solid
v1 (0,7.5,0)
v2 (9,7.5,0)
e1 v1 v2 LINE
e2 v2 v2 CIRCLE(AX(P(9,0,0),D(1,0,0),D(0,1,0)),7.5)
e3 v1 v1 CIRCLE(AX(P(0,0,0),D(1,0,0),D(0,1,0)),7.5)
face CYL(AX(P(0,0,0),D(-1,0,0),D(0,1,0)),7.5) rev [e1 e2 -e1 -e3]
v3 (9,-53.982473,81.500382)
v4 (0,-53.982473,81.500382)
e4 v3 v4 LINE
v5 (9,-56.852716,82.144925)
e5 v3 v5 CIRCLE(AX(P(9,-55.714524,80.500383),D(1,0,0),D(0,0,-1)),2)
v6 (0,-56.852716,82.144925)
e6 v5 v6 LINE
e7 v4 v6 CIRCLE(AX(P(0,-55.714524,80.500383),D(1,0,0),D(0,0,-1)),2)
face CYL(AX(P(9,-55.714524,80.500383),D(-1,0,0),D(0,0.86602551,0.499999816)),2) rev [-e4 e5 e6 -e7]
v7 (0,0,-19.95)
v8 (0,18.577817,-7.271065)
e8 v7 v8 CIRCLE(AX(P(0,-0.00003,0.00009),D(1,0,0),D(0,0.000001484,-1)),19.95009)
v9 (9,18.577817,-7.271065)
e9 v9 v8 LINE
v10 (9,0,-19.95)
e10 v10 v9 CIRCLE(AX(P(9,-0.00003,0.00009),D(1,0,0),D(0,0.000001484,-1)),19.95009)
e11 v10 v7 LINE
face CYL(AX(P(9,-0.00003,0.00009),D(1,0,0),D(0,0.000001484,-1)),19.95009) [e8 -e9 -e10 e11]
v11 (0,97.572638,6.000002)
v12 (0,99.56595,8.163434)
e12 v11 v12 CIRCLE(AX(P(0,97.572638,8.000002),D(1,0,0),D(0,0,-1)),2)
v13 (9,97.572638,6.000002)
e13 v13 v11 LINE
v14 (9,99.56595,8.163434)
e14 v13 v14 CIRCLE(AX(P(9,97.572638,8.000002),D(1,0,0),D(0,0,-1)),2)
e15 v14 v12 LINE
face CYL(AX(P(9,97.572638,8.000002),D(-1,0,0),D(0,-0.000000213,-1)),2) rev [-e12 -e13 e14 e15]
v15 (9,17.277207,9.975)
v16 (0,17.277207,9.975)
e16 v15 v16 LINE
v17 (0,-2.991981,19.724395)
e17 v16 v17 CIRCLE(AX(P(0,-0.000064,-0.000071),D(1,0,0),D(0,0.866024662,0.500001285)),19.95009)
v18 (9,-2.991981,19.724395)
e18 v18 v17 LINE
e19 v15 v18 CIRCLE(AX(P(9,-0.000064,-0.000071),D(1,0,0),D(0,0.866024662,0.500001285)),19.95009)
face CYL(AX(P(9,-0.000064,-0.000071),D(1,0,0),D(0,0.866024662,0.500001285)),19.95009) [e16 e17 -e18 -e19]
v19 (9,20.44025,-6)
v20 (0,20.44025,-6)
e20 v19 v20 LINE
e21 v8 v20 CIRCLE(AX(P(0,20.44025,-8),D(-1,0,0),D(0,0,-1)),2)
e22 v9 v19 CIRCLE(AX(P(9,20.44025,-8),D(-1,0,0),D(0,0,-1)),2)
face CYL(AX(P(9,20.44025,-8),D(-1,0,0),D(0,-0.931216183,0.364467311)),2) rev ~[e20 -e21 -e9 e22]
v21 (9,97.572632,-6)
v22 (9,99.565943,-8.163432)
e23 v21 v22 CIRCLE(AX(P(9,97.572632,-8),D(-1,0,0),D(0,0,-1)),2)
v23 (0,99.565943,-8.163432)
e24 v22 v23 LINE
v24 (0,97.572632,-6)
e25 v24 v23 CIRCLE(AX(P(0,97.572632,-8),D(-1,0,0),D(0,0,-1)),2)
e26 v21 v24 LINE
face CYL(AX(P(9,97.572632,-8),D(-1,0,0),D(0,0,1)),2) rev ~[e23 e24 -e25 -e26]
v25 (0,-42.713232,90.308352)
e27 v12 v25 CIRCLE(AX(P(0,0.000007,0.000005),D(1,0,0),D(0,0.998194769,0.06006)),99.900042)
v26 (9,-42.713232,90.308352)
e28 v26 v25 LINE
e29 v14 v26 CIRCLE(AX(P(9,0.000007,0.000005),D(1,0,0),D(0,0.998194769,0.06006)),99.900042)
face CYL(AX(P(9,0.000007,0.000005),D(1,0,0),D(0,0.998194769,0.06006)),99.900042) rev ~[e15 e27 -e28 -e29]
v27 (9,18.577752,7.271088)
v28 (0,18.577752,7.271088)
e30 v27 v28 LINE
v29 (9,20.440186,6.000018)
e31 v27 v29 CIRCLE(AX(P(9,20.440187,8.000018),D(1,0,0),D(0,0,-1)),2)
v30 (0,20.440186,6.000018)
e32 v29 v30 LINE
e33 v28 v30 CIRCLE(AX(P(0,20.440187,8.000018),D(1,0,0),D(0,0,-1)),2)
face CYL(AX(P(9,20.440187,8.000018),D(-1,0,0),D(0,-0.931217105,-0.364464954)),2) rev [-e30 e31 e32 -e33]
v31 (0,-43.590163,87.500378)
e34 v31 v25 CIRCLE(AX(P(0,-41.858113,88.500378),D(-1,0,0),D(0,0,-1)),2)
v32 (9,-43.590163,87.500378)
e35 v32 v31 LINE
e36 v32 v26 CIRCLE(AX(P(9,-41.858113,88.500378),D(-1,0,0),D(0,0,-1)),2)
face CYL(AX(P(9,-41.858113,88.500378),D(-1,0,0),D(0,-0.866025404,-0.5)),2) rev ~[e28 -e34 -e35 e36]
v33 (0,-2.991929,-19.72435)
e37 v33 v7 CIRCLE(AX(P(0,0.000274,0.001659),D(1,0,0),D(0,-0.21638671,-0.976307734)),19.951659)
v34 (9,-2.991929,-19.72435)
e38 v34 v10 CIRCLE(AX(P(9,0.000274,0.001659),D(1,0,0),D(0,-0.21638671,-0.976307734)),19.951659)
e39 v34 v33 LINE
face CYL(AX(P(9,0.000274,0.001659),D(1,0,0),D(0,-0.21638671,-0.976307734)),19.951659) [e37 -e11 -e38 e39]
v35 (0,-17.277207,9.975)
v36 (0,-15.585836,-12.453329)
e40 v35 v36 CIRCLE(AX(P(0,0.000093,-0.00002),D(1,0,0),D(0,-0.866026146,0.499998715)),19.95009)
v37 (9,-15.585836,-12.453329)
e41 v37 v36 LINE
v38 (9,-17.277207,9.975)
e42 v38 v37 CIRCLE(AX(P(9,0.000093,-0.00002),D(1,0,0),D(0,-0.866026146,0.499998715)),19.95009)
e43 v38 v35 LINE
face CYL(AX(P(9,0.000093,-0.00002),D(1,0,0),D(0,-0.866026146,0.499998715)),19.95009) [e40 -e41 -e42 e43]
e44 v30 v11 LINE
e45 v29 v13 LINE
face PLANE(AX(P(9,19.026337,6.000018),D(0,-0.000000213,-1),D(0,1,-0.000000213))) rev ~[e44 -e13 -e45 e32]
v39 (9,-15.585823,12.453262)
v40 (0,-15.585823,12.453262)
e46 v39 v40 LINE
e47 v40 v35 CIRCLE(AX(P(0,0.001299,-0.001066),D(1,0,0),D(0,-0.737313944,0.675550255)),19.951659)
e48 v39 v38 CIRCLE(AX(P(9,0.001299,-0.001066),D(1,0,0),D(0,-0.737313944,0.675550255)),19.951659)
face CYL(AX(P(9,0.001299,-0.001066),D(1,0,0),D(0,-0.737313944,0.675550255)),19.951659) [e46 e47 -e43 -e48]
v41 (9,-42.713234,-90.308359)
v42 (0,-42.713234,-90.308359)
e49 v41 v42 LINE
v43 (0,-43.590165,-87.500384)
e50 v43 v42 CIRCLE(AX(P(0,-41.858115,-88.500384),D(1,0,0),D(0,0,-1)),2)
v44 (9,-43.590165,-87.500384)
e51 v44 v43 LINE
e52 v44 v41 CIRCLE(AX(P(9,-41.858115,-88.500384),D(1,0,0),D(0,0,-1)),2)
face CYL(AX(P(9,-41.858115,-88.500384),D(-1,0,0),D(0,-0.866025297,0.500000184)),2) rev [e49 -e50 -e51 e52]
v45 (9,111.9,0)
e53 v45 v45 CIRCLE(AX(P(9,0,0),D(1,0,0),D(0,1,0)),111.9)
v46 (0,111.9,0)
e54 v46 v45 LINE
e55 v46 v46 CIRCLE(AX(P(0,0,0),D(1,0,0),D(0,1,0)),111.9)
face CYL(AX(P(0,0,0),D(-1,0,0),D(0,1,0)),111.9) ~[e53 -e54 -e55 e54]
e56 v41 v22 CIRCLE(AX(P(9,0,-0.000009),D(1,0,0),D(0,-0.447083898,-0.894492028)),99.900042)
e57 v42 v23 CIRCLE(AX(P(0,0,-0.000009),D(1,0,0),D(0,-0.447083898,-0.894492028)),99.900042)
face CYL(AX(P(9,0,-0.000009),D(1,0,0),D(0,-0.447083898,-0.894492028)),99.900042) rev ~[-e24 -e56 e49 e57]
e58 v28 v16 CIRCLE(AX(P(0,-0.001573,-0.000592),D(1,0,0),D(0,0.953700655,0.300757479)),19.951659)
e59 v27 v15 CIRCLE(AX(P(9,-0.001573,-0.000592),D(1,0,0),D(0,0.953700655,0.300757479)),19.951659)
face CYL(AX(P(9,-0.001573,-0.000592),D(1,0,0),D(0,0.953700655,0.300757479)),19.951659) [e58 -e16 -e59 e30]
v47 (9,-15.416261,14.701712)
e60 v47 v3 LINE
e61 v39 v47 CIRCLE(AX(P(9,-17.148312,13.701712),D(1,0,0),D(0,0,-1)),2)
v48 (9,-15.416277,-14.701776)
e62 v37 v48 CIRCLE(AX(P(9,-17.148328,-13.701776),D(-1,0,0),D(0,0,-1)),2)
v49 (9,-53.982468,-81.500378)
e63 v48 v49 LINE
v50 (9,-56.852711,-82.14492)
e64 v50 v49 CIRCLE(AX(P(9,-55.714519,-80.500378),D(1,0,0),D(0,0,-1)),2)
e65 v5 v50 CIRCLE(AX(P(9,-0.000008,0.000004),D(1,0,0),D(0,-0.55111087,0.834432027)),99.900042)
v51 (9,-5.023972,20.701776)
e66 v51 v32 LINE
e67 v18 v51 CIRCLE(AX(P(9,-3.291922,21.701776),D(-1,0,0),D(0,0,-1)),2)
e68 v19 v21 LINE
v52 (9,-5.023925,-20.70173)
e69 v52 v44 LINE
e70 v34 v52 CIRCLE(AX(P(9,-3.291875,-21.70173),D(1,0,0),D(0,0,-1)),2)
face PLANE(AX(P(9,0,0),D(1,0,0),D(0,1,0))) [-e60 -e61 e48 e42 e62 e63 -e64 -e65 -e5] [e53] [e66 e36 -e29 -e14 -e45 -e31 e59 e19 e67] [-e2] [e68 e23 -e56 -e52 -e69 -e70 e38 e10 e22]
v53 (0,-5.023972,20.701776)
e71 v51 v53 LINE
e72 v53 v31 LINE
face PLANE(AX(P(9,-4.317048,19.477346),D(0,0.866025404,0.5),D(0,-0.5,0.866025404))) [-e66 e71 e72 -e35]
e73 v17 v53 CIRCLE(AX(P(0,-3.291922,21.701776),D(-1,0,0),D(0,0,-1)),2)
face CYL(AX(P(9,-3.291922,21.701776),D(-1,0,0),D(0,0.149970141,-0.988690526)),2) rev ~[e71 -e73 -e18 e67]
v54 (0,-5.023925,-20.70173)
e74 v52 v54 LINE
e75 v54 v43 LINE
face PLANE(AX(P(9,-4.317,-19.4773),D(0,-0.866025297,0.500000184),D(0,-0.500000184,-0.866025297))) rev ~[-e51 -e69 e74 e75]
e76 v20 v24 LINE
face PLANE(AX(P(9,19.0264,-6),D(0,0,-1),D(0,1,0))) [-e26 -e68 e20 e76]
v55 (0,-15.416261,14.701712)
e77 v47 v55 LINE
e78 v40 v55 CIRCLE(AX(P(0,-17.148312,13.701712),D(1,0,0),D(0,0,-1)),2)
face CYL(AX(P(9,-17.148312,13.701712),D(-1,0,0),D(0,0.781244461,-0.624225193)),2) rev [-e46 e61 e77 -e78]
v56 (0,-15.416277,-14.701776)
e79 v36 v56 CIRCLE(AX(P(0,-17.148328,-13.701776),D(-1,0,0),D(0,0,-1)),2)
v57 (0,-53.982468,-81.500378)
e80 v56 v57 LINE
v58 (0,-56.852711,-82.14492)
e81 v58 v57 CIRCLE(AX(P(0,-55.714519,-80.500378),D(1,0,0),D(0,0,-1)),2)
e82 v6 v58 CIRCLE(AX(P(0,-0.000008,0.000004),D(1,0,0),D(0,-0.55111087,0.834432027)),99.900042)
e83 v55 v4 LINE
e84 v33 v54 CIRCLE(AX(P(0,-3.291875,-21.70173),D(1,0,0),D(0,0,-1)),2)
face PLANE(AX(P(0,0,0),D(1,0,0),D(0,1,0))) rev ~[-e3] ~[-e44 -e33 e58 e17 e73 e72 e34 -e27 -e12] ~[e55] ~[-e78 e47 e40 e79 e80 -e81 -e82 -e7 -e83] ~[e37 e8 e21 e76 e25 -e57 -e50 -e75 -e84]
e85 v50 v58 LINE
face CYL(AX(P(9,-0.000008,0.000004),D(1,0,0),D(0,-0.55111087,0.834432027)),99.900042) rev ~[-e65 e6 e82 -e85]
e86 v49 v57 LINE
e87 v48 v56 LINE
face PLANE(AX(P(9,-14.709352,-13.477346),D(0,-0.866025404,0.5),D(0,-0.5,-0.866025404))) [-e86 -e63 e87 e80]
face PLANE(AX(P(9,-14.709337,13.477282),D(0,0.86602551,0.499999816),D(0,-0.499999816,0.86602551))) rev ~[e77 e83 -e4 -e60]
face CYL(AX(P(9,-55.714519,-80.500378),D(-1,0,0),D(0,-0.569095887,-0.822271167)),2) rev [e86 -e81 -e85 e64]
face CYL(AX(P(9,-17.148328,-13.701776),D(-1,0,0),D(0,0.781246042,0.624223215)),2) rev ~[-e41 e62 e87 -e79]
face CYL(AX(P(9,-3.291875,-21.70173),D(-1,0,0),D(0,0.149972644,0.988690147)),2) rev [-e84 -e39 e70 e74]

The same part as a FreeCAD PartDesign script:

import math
import FreeCAD as App
import Part
import Sketcher
Q = App.Units.Quantity


def edges_at(feature, points):
    """Names of the edges that pass closest to the given points."""
    edges = feature.Shape.Edges
    near = lambda p: min(range(len(edges)), key=lambda i: edges[i].distToShape(Part.Vertex(*p))[0])
    return sorted({f"Edge{near(p) + 1}" for p in points})

doc = App.newDocument("Part")
body = doc.addObject("PartDesign::Body", "Body")

# Sketch on YZ plane
sketch1 = body.newObject("Sketcher::SketchObject", "Sketch")
sketch1.AttachmentSupport = (doc.getObject("YZ_Plane"), [""])
sketch1.MapMode = "FlatFace"
sketch1.addGeometry(Part.Circle(App.Vector(0, 0, 0), App.Vector(0, 0, 1), 111.9), False)
sketch1.addGeometry(Part.Circle(App.Vector(0, 0, 0), App.Vector(0, 0, 1), 7.5), False)
sketch1.addConstraint(Sketcher.Constraint("Coincident", 0, 3, -1, 1))
sketch1.addConstraint(Sketcher.Constraint("Coincident", 1, 3, -1, 1))
sketch1.addConstraint(Sketcher.Constraint("Diameter", 1, 15.0))
sketch1.addConstraint(Sketcher.Constraint("Diameter", 0, 223.8))
pad1 = body.newObject("PartDesign::Pad", "Pad")
pad1.Profile = sketch1
pad1.Length = 9

# Sketch on YZ plane
sketch2 = body.newObject("Sketcher::SketchObject", "Sketch001")
sketch2.AttachmentSupport = (doc.getObject("YZ_Plane"), [""])
sketch2.MapMode = "FlatFace"
sketch2.AttachmentOffset = App.Placement(App.Vector(0, 0, 9), App.Rotation())
sketch2.addGeometry(Part.LineSegment(App.Vector(99.7197, -6, 0), App.Vector(19.0264, -6, 0)), False)
sketch2.addGeometry(Part.ArcOfCircle(Part.Circle(App.Vector(0, 0, 0), App.Vector(0, 0, 1), 19.950035), math.radians(-90), math.radians(-17.502737)), False)
sketch2.addGeometry(Part.ArcOfCircle(Part.Circle(App.Vector(0.000274, 0.001659, 0), App.Vector(0, 0, 1), 19.951659), math.radians(-102.496895), math.radians(-90.000786)), False)
sketch2.addGeometry(Part.LineSegment(App.Vector(-4.317, -19.4773, 0), App.Vector(-44.6637, -89.3598, 0)), False)
sketch2.addGeometry(Part.ArcOfCircle(Part.Circle(App.Vector(0, 0, 0), App.Vector(0, 0, 1), 99.900043), math.radians(-116.556741), math.radians(-3.443259)), False)
sketch2.addConstraint(Sketcher.Constraint("Coincident", 0, 2, 1, 2))
sketch2.addConstraint(Sketcher.Constraint("Tangent", 1, 1, 2, 2))
sketch2.addConstraint(Sketcher.Constraint("Coincident", 2, 1, 3, 1))
sketch2.addConstraint(Sketcher.Constraint("Coincident", 3, 2, 4, 1))
sketch2.addConstraint(Sketcher.Constraint("Coincident", 4, 2, 0, 1))
sketch2.addConstraint(Sketcher.Constraint("Horizontal", 0))
sketch2.addConstraint(Sketcher.Constraint("Coincident", 1, 3, -1, 1))
sketch2.addConstraint(Sketcher.Constraint("Coincident", 4, 3, -1, 1))
sketch2.addConstraint(Sketcher.Constraint("PointOnObject", 1, 1, -2))
sketch2.addConstraint(Sketcher.Constraint("Radius", 4, 99.9))
sketch2.addConstraint(Sketcher.Constraint("Angle", 3, Q("-120 deg")))
sketch2.addConstraint(Sketcher.Constraint("Radius", 1, 19.95))
sketch2.addConstraint(Sketcher.Constraint("DistanceY", 0, 2, -1, 1, 6.0))
sketch2.addConstraint(Sketcher.Constraint("Radius", 2, 19.9517))
sketch2.addConstraint(Sketcher.Constraint("DistanceX", 2, 1, -1, 1, 4.317))
pocket1 = body.newObject("PartDesign::Pocket", "Pocket")
pocket1.Profile = sketch2
pocket1.Length = 9
doc.recompute()

polarpattern = body.newObject("PartDesign::PolarPattern", "PolarPattern")
polarpattern.Originals = [pocket1]
polarpattern.Axis = (doc.getObject("X_Axis"), [""])
polarpattern.Angle = 360
polarpattern.Occurrences = 3
body.Tip = polarpattern
doc.recompute()

fillet = body.newObject("PartDesign::Fillet", "Fillet")
fillet.Base = (polarpattern, edges_at(polarpattern, [
    (4.5, -14.709, -13.477),
    (4.5, -14.709, 13.477),
    (4.5, -55.056, 83.36),
    (4.5, -55.056, -83.36),
    (4.5, -44.664, -89.36),
    (4.5, 99.72, -6),
    (4.5, -4.317, -19.477),
    (4.5, 19.026, -6),
    (4.5, 19.026, 6),
    (4.5, -4.317, 19.477),
    (4.5, 99.72, 6),
    (4.5, -44.664, 89.36),
]))
fillet.Radius = 2

doc.recompute()
